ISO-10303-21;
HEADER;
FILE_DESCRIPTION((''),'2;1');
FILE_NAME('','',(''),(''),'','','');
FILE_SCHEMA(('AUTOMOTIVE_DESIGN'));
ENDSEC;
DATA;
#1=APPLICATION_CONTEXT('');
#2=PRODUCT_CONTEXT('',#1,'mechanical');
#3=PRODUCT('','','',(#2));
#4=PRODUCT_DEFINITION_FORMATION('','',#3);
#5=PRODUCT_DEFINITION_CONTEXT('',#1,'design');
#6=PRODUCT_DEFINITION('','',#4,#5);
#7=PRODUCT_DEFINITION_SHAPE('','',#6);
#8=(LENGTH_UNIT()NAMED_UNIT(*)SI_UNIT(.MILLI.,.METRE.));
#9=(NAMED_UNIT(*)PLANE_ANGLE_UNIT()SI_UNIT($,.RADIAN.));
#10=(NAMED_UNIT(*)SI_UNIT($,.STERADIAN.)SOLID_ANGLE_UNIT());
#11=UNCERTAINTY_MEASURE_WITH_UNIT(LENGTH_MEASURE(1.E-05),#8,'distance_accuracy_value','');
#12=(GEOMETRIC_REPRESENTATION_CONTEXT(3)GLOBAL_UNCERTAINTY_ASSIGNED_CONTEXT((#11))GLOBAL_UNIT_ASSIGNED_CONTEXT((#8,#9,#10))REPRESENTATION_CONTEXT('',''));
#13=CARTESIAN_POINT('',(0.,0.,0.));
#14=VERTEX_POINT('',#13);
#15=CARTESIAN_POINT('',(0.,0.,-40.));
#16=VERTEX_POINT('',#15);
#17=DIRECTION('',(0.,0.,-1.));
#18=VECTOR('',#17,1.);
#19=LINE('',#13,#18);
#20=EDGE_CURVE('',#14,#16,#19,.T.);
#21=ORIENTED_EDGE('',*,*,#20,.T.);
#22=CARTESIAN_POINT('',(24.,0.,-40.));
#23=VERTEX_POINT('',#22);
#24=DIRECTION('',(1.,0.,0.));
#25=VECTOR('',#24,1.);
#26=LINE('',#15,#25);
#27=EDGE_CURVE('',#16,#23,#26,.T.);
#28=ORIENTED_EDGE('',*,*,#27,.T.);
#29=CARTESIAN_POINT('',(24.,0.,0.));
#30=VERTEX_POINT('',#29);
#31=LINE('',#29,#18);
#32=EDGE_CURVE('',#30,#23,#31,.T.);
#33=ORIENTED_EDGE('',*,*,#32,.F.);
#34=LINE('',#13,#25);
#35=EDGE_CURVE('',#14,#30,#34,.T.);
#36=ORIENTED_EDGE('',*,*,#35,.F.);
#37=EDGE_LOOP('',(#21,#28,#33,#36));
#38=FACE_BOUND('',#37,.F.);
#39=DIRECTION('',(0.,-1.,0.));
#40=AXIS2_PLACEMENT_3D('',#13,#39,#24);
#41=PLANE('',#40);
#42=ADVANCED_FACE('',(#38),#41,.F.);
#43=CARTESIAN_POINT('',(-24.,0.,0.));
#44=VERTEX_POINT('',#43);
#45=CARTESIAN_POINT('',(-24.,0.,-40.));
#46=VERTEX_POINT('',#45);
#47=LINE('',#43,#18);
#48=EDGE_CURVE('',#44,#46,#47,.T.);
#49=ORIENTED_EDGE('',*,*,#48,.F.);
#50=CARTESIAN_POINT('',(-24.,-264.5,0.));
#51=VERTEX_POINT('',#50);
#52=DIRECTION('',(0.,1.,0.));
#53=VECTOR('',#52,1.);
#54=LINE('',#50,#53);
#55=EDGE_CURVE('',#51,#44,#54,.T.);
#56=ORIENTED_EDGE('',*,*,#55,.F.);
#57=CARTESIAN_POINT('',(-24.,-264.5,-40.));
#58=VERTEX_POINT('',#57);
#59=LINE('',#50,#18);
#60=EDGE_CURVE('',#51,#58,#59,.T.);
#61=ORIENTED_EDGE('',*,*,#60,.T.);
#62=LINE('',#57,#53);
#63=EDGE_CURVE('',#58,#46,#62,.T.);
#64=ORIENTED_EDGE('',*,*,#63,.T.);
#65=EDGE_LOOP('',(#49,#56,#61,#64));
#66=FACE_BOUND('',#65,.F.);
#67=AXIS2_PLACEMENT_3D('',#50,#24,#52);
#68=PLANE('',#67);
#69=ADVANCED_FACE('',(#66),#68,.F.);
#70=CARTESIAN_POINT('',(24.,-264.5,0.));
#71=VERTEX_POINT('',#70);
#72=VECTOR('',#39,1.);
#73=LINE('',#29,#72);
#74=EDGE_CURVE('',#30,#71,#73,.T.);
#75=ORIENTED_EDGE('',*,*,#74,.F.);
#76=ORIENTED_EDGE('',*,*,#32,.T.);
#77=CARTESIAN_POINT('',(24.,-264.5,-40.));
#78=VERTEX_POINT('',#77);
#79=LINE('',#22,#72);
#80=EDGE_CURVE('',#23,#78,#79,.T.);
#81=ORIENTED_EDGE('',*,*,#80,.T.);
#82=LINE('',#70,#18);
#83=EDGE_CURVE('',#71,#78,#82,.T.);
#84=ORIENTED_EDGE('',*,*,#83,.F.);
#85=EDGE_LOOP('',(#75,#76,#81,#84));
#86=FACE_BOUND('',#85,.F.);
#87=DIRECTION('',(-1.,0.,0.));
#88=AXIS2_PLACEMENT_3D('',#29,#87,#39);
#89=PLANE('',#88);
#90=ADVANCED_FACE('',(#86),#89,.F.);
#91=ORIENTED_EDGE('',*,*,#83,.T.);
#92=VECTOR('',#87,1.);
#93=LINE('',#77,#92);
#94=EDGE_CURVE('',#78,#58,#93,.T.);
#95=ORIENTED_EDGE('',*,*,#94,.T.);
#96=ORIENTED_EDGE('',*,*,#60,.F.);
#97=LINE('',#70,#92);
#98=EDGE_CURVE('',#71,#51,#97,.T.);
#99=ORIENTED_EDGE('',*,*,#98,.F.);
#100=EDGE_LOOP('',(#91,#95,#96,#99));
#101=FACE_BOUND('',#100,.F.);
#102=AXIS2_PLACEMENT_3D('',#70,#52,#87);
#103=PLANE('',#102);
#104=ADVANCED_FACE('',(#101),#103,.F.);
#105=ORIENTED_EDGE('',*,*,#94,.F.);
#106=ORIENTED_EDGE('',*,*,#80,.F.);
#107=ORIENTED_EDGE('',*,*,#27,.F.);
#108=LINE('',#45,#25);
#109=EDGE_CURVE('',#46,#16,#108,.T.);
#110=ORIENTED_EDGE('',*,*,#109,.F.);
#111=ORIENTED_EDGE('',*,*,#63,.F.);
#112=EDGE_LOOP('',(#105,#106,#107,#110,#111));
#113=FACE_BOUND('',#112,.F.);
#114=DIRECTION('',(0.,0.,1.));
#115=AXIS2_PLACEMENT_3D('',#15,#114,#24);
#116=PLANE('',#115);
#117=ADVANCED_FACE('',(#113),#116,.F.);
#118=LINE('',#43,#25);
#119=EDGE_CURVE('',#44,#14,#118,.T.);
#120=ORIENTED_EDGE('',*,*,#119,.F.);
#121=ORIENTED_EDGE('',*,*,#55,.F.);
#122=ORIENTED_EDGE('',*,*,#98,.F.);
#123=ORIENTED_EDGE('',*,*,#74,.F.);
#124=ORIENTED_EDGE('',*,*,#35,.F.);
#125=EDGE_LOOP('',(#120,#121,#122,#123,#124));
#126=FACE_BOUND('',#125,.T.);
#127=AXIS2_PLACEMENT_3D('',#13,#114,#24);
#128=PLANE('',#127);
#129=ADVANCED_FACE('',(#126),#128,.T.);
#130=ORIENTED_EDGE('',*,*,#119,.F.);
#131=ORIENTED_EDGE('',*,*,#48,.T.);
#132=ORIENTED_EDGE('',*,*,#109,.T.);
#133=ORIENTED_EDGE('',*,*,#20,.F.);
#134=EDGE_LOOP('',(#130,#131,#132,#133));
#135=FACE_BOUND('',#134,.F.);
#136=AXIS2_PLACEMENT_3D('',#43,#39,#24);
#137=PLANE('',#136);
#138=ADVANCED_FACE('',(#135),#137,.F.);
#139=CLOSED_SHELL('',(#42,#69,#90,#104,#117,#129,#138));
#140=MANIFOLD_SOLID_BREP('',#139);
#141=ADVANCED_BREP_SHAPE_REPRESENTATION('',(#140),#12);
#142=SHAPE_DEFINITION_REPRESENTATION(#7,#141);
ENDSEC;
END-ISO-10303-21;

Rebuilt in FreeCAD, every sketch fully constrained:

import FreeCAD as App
import Part
import Sketcher

V = App.Vector

doc = App.newDocument("Part")
body = doc.addObject("PartDesign::Body", "Body")

sketch1 = body.newObject("Sketcher::SketchObject", "Sketch")
sketch1.AttachmentSupport = (doc.getObject("XY_Plane"), [""])
sketch1.MapMode = "FlatFace"
sketch1.addGeometry(Part.LineSegment(V(24, 0, 0), V(-24, 0, 0)), False)
sketch1.addGeometry(Part.LineSegment(V(-24, 0, 0), V(-24, -264, 0)), False)
sketch1.addGeometry(Part.LineSegment(V(-24, -264, 0), V(24, -264, 0)), False)
sketch1.addGeometry(Part.LineSegment(V(24, -264, 0), V(24, 0, 0)), False)
sketch1.addConstraint(Sketcher.Constraint("Coincident", 0, 2, 1, 1))
sketch1.addConstraint(Sketcher.Constraint("Coincident", 1, 2, 2, 1))
sketch1.addConstraint(Sketcher.Constraint("Coincident", 2, 2, 3, 1))
sketch1.addConstraint(Sketcher.Constraint("Coincident", 3, 2, 0, 1))
sketch1.addConstraint(Sketcher.Constraint("Horizontal", 0))
sketch1.addConstraint(Sketcher.Constraint("Vertical", 1))
sketch1.addConstraint(Sketcher.Constraint("Horizontal", 2))
sketch1.addConstraint(Sketcher.Constraint("Vertical", 3))
sketch1.addConstraint(Sketcher.Constraint("Symmetric", 0, 2, 3, 2, -1, 1))
sketch1.addConstraint(Sketcher.Constraint("DistanceX", 0, 2, 0, 1, 48.0))
sketch1.addConstraint(Sketcher.Constraint("DistanceY", 1, 2, 1, 1, 264.5))
pad1 = body.newObject("PartDesign::Pad", "Pad")
pad1.Profile = sketch1
pad1.Length = 40
pad1.Reversed = True

doc.recompute()
